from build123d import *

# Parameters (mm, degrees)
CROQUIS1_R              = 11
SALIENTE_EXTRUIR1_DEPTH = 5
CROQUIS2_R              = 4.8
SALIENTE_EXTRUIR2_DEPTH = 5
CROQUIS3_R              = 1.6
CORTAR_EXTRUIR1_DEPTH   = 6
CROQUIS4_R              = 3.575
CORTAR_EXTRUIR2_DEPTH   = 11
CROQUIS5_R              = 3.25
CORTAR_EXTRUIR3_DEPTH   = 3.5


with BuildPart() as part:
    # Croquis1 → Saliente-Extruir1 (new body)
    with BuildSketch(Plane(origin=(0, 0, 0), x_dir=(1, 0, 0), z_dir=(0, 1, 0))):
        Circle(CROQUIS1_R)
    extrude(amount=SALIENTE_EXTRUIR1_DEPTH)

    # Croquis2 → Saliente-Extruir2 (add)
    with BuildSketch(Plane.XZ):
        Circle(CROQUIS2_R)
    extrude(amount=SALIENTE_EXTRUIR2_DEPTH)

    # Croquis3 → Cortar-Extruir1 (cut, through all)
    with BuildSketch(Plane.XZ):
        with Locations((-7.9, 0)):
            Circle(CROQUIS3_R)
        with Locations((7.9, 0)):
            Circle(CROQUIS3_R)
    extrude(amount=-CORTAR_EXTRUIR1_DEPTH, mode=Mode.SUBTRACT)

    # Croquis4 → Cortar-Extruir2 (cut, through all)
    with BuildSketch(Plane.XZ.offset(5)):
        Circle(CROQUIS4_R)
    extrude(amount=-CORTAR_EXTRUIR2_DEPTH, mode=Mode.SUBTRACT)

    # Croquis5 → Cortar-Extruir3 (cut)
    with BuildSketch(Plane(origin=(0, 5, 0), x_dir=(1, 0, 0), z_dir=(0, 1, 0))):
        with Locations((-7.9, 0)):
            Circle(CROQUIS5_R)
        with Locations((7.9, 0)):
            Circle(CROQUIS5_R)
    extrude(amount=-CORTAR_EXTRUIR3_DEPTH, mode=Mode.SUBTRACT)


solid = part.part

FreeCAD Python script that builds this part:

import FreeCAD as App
import Part
import Sketcher
from FreeCAD import Vector
Q = App.Units.Quantity

doc = App.newDocument("Part")
params = doc.addObject("Spreadsheet::Sheet", "Params")
for row, (alias, value) in enumerate([
    ("sketch1_diameter", "22 mm"),
    ("pad1_length", "5 mm"),
    ("sketch2_diameter", "9.6 mm"),
    ("pad2_length", "5 mm"),
    ("sketch3_diameter", "3.2 mm"),
    ("sketch4_diameter", "7.15 mm"),
    ("sketch5_diameter", "6.5 mm"),
    ("pocket3_length", "3.5 mm"),
], start=1):
    params.set(f"A{row}", alias)
    params.set(f"B{row}", "=" + value)
    params.setAlias(f"B{row}", alias)

body = doc.addObject("PartDesign::Body", "Body")

sketch1 = doc.addObject("Sketcher::SketchObject", "Sketch")
body.addObject(sketch1)
sketch1.AttachmentSupport = (doc.XZ_Plane, [""])
sketch1.MapMode = "FlatFace"
sketch1.addGeometry(Part.Circle(Vector(0, 0, 0), Vector(0, 0, 1), 11), False)
sketch1.addConstraint([
    Sketcher.Constraint("Coincident", 0, 3, -1, 1),
    Sketcher.Constraint("Diameter", 0, Q("22 mm")),
])
sketch1.setExpression("Constraints[1]", "Params.sketch1_diameter")
pad1 = doc.addObject("PartDesign::Pad", "Pad")
body.addObject(pad1)
pad1.Profile = sketch1
pad1.setExpression("Length", "Params.pad1_length")
pad1.Reversed = True

sketch2 = doc.addObject("Sketcher::SketchObject", "Sketch001")
body.addObject(sketch2)
sketch2.AttachmentSupport = (doc.XZ_Plane, [""])
sketch2.MapMode = "FlatFace"
sketch2.addGeometry(Part.Circle(Vector(0, 0, 0), Vector(0, 0, 1), 4.8), False)
sketch2.addConstraint([
    Sketcher.Constraint("Coincident", 0, 3, -1, 1),
    Sketcher.Constraint("Diameter", 0, Q("9.6 mm")),
])
sketch2.setExpression("Constraints[1]", "Params.sketch2_diameter")
pad2 = doc.addObject("PartDesign::Pad", "Pad001")
body.addObject(pad2)
pad2.Profile = sketch2
pad2.setExpression("Length", "Params.pad2_length")

sketch3 = doc.addObject("Sketcher::SketchObject", "Sketch002")
body.addObject(sketch3)
sketch3.AttachmentSupport = (doc.XZ_Plane, [""])
sketch3.MapMode = "FlatFace"
sketch3.addGeometry([
    Part.Circle(Vector(-7.9, 0, 0), Vector(0, 0, 1), 1.6),
    Part.Circle(Vector(7.9, 0, 0), Vector(0, 0, 1), 1.6),
], False)
sketch3.addConstraint([
    Sketcher.Constraint("Equal", 0, 1),
    Sketcher.Constraint("Symmetric", 0, 3, 1, 3, -1, 1),
    Sketcher.Constraint("PointOnObject", 0, 3, -1),
    Sketcher.Constraint("Diameter", 0, Q("3.2 mm")),
    Sketcher.Constraint("DistanceX", 0, 3, -1, 1, Q("7.9 mm")),
])
sketch3.setExpression("Constraints[3]", "Params.sketch3_diameter")
pocket1 = doc.addObject("PartDesign::Pocket", "Pocket")
body.addObject(pocket1)
pocket1.Profile = sketch3
pocket1.Type = "ThroughAll"

sketch4 = doc.addObject("Sketcher::SketchObject", "Sketch003")
body.addObject(sketch4)
sketch4.AttachmentSupport = (doc.XZ_Plane, [""])
sketch4.MapMode = "FlatFace"
sketch4.AttachmentOffset = App.Placement(Vector(0, 0, 5), App.Rotation())
sketch4.addGeometry(Part.Circle(Vector(0, 0, 0), Vector(0, 0, 1), 3.575), False)
sketch4.addConstraint([
    Sketcher.Constraint("Coincident", 0, 3, -1, 1),
    Sketcher.Constraint("Diameter", 0, Q("7.15 mm")),
])
sketch4.setExpression("Constraints[1]", "Params.sketch4_diameter")
pocket2 = doc.addObject("PartDesign::Pocket", "Pocket001")
body.addObject(pocket2)
pocket2.Profile = sketch4
pocket2.Type = "ThroughAll"

sketch5 = doc.addObject("Sketcher::SketchObject", "Sketch004")
body.addObject(sketch5)
sketch5.AttachmentSupport = (doc.XZ_Plane, [""])
sketch5.MapMode = "FlatFace"
sketch5.AttachmentOffset = App.Placement(Vector(0, 0, -5), App.Rotation())
sketch5.addGeometry([
    Part.Circle(Vector(-7.9, 0, 0), Vector(0, 0, 1), 3.25),
    Part.Circle(Vector(7.9, 0, 0), Vector(0, 0, 1), 3.25),
], False)
sketch5.addConstraint([
    Sketcher.Constraint("Equal", 0, 1),
    Sketcher.Constraint("Symmetric", 0, 3, 1, 3, -1, 1),
    Sketcher.Constraint("PointOnObject", 0, 3, -1),
    Sketcher.Constraint("Diameter", 0, Q("6.5 mm")),
    Sketcher.Constraint("DistanceX", 0, 3, -1, 1, Q("7.9 mm")),
])
sketch5.setExpression("Constraints[3]", "Params.sketch5_diameter")
pocket3 = doc.addObject("PartDesign::Pocket", "Pocket002")
body.addObject(pocket3)
pocket3.Profile = sketch5
pocket3.setExpression("Length", "Params.pocket3_length")
pocket3.Reversed = True

doc.recompute()
